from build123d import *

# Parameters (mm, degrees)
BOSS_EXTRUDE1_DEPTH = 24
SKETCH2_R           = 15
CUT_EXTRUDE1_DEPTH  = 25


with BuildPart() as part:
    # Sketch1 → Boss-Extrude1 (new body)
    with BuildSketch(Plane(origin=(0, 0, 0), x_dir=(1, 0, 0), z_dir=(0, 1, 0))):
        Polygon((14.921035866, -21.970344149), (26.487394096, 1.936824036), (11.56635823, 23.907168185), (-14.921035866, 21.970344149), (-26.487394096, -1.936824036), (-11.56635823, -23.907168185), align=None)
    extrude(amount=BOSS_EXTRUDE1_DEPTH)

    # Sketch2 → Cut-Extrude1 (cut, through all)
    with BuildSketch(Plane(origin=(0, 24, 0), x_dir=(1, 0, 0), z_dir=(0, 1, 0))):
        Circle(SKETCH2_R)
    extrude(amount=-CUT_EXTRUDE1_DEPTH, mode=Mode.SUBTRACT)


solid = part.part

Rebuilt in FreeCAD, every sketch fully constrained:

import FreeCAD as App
import Part
import Sketcher

V = App.Vector


def add_polygon(sketch, points):
    """Adds a closed chain of lines whose ends are joined by coincident constraints."""
    first, n = sketch.GeometryCount, len(points)
    for a, b in zip(points, points[1:] + points[:1]):
        sketch.addGeometry(Part.LineSegment(App.Vector(*a, 0), App.Vector(*b, 0)), False)
    for i in range(n):
        sketch.addConstraint(Sketcher.Constraint("Coincident", first + i, 2, first + (i + 1) % n, 1))

doc = App.newDocument("Part")
body = doc.addObject("PartDesign::Body", "Body")

sketch1 = doc.addObject("Sketcher::SketchObject", "Sketch")
body.addObject(sketch1)
sketch1.AttachmentSupport = (doc.XZ_Plane, [""])
sketch1.MapMode = "FlatFace"
add_polygon(sketch1, [(14.921036, 21.970344), (26.487394, -1.936824), (11.566358, -23.907168), (-14.921036, -21.970344), (-26.487394, 1.936824), (-11.566358, 23.907168)])
sketch1.addConstraint([
    Sketcher.Constraint("Symmetric", 0, 2, 3, 2, -1, 1),
    Sketcher.Constraint("Symmetric", 1, 2, 4, 2, -1, 1),
    Sketcher.Constraint("Symmetric", 2, 2, 5, 2, -1, 1),
    Sketcher.Constraint("Equal", 0, 1),
    Sketcher.Constraint("Equal", 1, 2),
    Sketcher.Constraint("DistanceX", -1, 1, 1, 2, 11.566358),
    Sketcher.Constraint("DistanceY", 1, 2, -1, 1, 23.907168),
    Sketcher.Constraint("DistanceX", 2, 2, 0, 2, 41.40843),
    Sketcher.Constraint("DistanceY", 2, 2, 0, 2, 20.03352),
])
pad1 = doc.addObject("PartDesign::Pad", "Pad")
body.addObject(pad1)
pad1.Profile = sketch1
pad1.Length = 24
pad1.Reversed = True

sketch2 = doc.addObject("Sketcher::SketchObject", "Sketch001")
body.addObject(sketch2)
sketch2.AttachmentSupport = (doc.XZ_Plane, [""])
sketch2.MapMode = "FlatFace"
sketch2.AttachmentOffset = App.Placement(V(0, 0, -24), App.Rotation())
sketch2.addGeometry(Part.Circle(V(0, 0, 0), V(0, 0, 1), 15), False)
sketch2.addConstraint([
    Sketcher.Constraint("Coincident", 0, 3, -1, 1),
    Sketcher.Constraint("Diameter", 0, 30.0),
])
pocket1 = doc.addObject("PartDesign::Pocket", "Pocket")
body.addObject(pocket1)
pocket1.Profile = sketch2
pocket1.Type = "ThroughAll"
pocket1.Reversed = True

doc.recompute()
